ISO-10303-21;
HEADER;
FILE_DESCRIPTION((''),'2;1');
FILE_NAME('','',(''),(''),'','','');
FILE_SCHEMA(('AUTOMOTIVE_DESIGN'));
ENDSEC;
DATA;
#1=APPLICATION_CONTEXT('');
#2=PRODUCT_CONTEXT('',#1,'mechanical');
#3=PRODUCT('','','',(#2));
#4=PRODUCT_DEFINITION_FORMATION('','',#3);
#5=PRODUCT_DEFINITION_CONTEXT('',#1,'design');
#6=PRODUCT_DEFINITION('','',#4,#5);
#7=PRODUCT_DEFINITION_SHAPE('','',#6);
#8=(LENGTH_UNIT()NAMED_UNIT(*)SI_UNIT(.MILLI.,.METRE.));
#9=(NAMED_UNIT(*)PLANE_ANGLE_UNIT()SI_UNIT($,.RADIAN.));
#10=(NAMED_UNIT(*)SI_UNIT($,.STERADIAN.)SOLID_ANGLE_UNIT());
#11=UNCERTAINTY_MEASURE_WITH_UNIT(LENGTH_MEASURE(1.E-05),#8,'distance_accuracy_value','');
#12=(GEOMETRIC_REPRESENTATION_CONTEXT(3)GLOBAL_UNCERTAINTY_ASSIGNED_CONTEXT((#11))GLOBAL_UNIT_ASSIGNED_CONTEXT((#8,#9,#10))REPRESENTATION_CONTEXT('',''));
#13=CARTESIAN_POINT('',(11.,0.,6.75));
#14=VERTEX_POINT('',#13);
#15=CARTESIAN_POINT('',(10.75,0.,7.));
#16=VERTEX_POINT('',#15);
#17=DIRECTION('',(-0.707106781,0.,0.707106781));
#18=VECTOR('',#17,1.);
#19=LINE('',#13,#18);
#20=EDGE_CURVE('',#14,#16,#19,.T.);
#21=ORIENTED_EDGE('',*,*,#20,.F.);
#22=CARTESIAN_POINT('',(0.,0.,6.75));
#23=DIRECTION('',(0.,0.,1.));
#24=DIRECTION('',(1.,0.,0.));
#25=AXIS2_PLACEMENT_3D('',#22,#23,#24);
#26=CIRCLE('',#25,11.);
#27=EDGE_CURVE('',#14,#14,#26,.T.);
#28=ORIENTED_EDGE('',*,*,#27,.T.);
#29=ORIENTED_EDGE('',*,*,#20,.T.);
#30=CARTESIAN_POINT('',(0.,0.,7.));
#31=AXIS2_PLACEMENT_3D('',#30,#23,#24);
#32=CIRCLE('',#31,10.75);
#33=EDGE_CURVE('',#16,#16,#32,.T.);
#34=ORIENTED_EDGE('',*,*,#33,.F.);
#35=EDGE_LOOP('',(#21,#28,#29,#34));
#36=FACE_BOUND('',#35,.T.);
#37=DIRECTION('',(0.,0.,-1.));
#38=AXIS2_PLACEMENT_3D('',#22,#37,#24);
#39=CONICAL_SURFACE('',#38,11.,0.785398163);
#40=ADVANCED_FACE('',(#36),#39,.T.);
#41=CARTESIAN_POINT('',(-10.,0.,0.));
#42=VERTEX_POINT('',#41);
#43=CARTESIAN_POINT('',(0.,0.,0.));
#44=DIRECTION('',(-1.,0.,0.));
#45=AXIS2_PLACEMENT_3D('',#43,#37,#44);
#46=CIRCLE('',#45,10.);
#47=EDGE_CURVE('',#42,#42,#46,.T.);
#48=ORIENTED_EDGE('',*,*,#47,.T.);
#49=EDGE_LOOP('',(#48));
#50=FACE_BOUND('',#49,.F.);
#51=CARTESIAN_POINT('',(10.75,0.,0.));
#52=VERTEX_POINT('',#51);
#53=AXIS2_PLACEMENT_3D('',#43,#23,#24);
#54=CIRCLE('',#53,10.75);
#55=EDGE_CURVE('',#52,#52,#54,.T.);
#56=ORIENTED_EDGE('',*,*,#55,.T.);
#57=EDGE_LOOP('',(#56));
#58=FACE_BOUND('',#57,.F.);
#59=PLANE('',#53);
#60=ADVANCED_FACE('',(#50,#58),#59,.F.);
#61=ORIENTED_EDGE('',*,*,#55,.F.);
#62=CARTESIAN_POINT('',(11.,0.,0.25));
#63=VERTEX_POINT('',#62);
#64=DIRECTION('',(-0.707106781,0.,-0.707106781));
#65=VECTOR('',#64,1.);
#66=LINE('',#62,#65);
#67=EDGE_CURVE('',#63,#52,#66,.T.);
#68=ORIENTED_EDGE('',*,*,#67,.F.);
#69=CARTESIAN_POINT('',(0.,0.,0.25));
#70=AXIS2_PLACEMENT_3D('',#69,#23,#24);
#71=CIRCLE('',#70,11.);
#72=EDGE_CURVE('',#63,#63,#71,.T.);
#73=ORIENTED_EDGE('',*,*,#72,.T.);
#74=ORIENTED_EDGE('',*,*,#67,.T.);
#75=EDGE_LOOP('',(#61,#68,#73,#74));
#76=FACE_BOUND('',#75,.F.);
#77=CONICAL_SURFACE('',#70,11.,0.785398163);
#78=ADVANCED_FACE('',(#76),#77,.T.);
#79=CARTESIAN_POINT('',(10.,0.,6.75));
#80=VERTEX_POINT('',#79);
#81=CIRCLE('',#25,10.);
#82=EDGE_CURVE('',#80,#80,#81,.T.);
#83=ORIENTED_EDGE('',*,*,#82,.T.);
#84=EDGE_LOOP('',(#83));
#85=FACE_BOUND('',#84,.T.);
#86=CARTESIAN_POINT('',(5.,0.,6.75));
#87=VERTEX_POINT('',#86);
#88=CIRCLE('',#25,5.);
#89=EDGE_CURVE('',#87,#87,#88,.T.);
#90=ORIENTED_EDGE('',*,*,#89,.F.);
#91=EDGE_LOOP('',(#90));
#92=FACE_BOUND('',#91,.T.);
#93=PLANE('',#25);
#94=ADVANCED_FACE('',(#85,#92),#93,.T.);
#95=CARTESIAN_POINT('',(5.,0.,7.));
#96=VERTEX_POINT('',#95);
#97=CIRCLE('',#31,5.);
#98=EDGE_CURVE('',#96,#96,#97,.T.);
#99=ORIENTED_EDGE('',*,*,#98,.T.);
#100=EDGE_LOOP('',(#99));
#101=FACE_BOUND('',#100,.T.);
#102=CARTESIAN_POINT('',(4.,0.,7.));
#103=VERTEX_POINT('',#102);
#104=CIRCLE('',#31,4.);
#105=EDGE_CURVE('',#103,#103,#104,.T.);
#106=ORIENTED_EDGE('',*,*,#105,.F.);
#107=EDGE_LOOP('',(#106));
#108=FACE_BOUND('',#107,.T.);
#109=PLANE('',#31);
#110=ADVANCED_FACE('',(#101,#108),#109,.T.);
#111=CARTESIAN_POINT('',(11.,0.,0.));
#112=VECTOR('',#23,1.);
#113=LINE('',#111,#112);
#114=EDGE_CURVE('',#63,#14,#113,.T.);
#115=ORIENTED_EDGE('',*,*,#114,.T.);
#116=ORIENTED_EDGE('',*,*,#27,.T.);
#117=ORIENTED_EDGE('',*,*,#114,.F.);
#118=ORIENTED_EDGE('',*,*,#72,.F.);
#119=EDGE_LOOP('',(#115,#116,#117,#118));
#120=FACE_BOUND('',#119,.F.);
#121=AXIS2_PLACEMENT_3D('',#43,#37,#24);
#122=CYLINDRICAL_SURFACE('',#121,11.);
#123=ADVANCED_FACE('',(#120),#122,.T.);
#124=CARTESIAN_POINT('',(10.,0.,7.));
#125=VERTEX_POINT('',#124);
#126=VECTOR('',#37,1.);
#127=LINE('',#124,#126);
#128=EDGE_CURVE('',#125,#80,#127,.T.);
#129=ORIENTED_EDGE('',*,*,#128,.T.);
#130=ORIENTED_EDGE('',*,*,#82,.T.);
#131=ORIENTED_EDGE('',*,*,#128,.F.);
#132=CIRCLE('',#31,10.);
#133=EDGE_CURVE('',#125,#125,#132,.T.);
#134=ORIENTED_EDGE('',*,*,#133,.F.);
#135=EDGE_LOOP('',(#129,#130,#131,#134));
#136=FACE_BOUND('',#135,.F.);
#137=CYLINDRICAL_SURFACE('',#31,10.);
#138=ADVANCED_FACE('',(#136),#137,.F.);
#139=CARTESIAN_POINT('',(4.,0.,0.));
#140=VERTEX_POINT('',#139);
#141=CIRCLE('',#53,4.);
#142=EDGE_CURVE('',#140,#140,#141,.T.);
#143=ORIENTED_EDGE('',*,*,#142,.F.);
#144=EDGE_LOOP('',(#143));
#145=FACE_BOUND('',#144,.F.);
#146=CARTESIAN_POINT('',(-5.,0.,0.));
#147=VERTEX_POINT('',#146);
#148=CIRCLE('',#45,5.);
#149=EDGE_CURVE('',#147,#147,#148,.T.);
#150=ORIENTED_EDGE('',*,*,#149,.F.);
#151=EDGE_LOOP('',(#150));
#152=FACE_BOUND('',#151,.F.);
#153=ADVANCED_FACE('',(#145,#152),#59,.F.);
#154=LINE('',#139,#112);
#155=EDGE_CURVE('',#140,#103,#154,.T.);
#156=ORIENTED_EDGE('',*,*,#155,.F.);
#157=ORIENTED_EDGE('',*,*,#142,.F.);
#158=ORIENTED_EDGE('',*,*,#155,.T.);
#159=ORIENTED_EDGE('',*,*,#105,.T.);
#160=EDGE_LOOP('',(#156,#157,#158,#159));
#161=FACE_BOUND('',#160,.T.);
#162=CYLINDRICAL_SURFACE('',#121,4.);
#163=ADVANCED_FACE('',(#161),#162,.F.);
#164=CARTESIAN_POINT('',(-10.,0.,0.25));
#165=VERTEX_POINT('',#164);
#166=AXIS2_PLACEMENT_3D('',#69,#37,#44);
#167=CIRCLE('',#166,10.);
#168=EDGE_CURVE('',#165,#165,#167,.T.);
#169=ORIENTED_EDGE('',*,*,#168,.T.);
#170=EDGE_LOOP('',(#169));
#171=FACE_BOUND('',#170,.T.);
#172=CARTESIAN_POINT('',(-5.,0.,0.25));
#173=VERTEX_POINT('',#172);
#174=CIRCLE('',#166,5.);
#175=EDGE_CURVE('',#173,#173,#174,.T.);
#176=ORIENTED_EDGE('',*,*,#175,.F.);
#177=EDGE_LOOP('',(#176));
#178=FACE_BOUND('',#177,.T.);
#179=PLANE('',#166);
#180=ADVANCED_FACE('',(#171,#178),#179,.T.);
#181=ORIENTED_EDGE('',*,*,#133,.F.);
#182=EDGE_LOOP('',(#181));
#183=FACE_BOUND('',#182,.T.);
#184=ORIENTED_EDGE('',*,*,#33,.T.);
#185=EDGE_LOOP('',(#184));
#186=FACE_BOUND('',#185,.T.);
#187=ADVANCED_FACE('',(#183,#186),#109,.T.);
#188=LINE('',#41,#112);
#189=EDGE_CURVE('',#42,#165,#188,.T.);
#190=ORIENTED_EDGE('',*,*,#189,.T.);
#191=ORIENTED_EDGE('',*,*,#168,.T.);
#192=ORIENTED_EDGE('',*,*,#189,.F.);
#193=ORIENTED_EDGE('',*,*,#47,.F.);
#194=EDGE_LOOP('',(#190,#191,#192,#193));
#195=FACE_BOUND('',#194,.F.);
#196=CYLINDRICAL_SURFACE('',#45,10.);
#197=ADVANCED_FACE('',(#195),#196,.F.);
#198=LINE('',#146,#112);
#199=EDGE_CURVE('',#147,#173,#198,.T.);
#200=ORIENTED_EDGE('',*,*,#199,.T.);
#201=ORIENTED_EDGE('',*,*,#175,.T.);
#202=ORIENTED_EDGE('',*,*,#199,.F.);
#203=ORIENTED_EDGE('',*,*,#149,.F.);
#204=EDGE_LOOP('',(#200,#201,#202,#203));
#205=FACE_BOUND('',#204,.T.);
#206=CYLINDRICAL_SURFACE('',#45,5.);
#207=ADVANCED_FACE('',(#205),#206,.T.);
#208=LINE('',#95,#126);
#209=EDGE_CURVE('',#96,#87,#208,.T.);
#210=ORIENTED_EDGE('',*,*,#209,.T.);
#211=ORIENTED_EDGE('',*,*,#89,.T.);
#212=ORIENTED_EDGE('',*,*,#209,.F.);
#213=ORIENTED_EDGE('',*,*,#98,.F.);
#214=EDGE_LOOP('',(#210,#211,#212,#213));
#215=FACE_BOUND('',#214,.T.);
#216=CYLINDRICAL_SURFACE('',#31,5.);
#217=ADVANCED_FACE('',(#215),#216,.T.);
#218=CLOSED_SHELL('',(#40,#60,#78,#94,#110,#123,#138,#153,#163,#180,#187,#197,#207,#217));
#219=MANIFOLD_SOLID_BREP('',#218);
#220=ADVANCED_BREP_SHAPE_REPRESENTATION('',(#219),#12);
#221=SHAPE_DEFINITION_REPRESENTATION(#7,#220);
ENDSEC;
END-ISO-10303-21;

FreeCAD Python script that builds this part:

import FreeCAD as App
import Part
import Sketcher

V = App.Vector


def edges_at(feature, points):
    """Names of the edges that pass closest to the given points."""
    edges = feature.Shape.Edges
    near = lambda p: min(range(len(edges)), key=lambda i: edges[i].distToShape(Part.Vertex(*p))[0])
    return sorted({f"Edge{near(p) + 1}" for p in points})

doc = App.newDocument("Part")
body = doc.addObject("PartDesign::Body", "Body")

sketch1 = body.newObject("Sketcher::SketchObject", "Sketch")
sketch1.AttachmentSupport = (doc.getObject("XY_Plane"), [""])
sketch1.MapMode = "FlatFace"
sketch1.addGeometry([
    Part.Circle(V(0, 0, 0), V(0, 0, 1), 11),
    Part.Circle(V(0, 0, 0), V(0, 0, 1), 4),
], False)
sketch1.addConstraint([
    Sketcher.Constraint("Coincident", 0, 3, -1, 1),
    Sketcher.Constraint("Coincident", 1, 3, -1, 1),
    Sketcher.Constraint("Diameter", 0, 22.0),
    Sketcher.Constraint("Diameter", 1, 8.0),
])
pad1 = body.newObject("PartDesign::Pad", "Pad")
pad1.Profile = sketch1
pad1.Length = 7

sketch2 = body.newObject("Sketcher::SketchObject", "Sketch001")
sketch2.AttachmentSupport = (doc.getObject("XY_Plane"), [""])
sketch2.MapMode = "FlatFace"
sketch2.AttachmentOffset = App.Placement(V(0, 0, 7), App.Rotation())
sketch2.addGeometry([
    Part.Circle(V(0, 0, 0), V(0, 0, 1), 10),
    Part.Circle(V(0, 0, 0), V(0, 0, 1), 5),
], False)
sketch2.addConstraint([
    Sketcher.Constraint("Coincident", 0, 3, -1, 1),
    Sketcher.Constraint("Coincident", 1, 3, -1, 1),
    Sketcher.Constraint("Diameter", 0, 20.0),
    Sketcher.Constraint("Diameter", 1, 10.0),
])
pocket1 = body.newObject("PartDesign::Pocket", "Pocket")
pocket1.Profile = sketch2
pocket1.Length = 0.25

sketch3 = body.newObject("Sketcher::SketchObject", "Sketch002")
sketch3.AttachmentSupport = (doc.getObject("XY_Plane"), [""])
sketch3.MapMode = "FlatFace"
sketch3.addGeometry([
    Part.Circle(V(0, 0, 0), V(0, 0, 1), 10),
    Part.Circle(V(0, 0, 0), V(0, 0, 1), 5),
], False)
sketch3.addConstraint([
    Sketcher.Constraint("Coincident", 0, 3, -1, 1),
    Sketcher.Constraint("Coincident", 1, 3, -1, 1),
    Sketcher.Constraint("Diameter", 0, 20.0),
    Sketcher.Constraint("Diameter", 1, 10.0),
])
pocket2 = body.newObject("PartDesign::Pocket", "Pocket001")
pocket2.Profile = sketch3
pocket2.Length = 0.25
pocket2.Reversed = True
doc.recompute()

chamfer = body.newObject("PartDesign::Chamfer", "Chamfer")
chamfer.Base = (pocket2, edges_at(pocket2, [(-11, 0, 7), (-11, 0, 0)]))
chamfer.Size = 0.25

doc.recompute()
